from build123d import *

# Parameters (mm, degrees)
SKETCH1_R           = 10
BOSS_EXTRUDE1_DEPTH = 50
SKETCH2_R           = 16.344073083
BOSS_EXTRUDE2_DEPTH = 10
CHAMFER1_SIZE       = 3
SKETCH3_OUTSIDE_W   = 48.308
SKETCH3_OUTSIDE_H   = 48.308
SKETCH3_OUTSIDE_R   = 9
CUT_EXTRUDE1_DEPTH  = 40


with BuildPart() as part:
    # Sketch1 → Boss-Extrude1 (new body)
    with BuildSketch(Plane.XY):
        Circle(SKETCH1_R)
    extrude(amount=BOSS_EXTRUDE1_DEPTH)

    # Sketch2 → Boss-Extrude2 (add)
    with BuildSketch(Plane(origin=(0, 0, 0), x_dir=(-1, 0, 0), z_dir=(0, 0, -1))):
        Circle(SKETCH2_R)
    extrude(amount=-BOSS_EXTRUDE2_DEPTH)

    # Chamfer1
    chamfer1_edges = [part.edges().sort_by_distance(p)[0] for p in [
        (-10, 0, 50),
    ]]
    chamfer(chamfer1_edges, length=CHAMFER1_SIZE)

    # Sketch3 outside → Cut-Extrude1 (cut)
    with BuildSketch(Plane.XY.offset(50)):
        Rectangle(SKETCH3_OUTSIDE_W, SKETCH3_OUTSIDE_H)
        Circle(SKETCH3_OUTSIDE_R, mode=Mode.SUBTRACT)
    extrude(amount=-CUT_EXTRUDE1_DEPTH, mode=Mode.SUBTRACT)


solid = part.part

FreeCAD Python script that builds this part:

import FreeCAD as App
import Part
import Sketcher
from FreeCAD import Vector
Q = App.Units.Quantity


def edges_at(feature, points):
    """Names of the edges that pass closest to the given points."""
    edges = feature.Shape.Edges
    near = lambda p: min(range(len(edges)), key=lambda i: edges[i].distToShape(Part.Vertex(*p))[0])
    return sorted({f"Edge{near(p) + 1}" for p in points})

doc = App.newDocument("Part")
body = doc.addObject("PartDesign::Body", "Body")

# Sketch on XY plane
sketch1 = doc.addObject("Sketcher::SketchObject", "Sketch")
body.addObject(sketch1)
sketch1.AttachmentSupport = (doc.XY_Plane, [""])
sketch1.MapMode = "FlatFace"
sketch1.addGeometry(Part.Circle(Vector(0, 0, 0), Vector(0, 0, 1), 10), False)
sketch1.addConstraint(Sketcher.Constraint("Coincident", 0, 3, -1, 1))
sketch1.addConstraint(Sketcher.Constraint("Diameter", 0, Q("20 mm")))
pad1 = doc.addObject("PartDesign::Pad", "Pad")
body.addObject(pad1)
pad1.Profile = sketch1
pad1.Length = 50

# Sketch on XY plane
sketch2 = doc.addObject("Sketcher::SketchObject", "Sketch001")
body.addObject(sketch2)
sketch2.AttachmentSupport = (doc.XY_Plane, [""])
sketch2.MapMode = "FlatFace"
sketch2.addGeometry(Part.Circle(Vector(0, 0, 0), Vector(0, 0, 1), 16), False)
sketch2.addConstraint(Sketcher.Constraint("Coincident", 0, 3, -1, 1))
sketch2.addConstraint(Sketcher.Constraint("Diameter", 0, Q("32.688146 mm")))
pad2 = doc.addObject("PartDesign::Pad", "Pad001")
body.addObject(pad2)
pad2.Profile = sketch2
pad2.Length = 10
doc.recompute()

chamfer = doc.addObject("PartDesign::Chamfer", "Chamfer")
body.addObject(chamfer)
chamfer.Base = (pad2, edges_at(pad2, [(-10, 0, 50)]))
chamfer.Size = 3

# Sketch on XY plane
sketch3 = doc.addObject("Sketcher::SketchObject", "Sketch002")
body.addObject(sketch3)
sketch3.AttachmentSupport = (doc.XY_Plane, [""])
sketch3.MapMode = "FlatFace"
sketch3.AttachmentOffset = App.Placement(Vector(0, 0, 50), App.Rotation())
sketch3.addGeometry(Part.LineSegment(Vector(-24, 24, 0), Vector(-24, -24, 0)), False)
sketch3.addGeometry(Part.LineSegment(Vector(-24, -24, 0), Vector(24, -24, 0)), False)
sketch3.addGeometry(Part.LineSegment(Vector(24, -24, 0), Vector(24, 24, 0)), False)
sketch3.addGeometry(Part.LineSegment(Vector(24, 24, 0), Vector(-24, 24, 0)), False)
sketch3.addGeometry(Part.Circle(Vector(0, 0, 0), Vector(0, 0, 1), 9), False)
sketch3.addConstraint(Sketcher.Constraint("Coincident", 0, 2, 1, 1))
sketch3.addConstraint(Sketcher.Constraint("Coincident", 1, 2, 2, 1))
sketch3.addConstraint(Sketcher.Constraint("Coincident", 2, 2, 3, 1))
sketch3.addConstraint(Sketcher.Constraint("Coincident", 3, 2, 0, 1))
sketch3.addConstraint(Sketcher.Constraint("Vertical", 0))
sketch3.addConstraint(Sketcher.Constraint("Horizontal", 1))
sketch3.addConstraint(Sketcher.Constraint("Vertical", 2))
sketch3.addConstraint(Sketcher.Constraint("Horizontal", 3))
sketch3.addConstraint(Sketcher.Constraint("Coincident", 4, 3, -1, 1))
sketch3.addConstraint(Sketcher.Constraint("Symmetric", 0, 2, 2, 2, -1, 1))
sketch3.addConstraint(Sketcher.Constraint("Equal", 3, 0))
sketch3.addConstraint(Sketcher.Constraint("Diameter", 4, Q("18 mm")))
sketch3.addConstraint(Sketcher.Constraint("DistanceX", 1, 1, 1, 2, Q("48.308 mm")))
pocket1 = doc.addObject("PartDesign::Pocket", "Pocket")
body.addObject(pocket1)
pocket1.Profile = sketch3
pocket1.Length = 40

doc.recompute()
